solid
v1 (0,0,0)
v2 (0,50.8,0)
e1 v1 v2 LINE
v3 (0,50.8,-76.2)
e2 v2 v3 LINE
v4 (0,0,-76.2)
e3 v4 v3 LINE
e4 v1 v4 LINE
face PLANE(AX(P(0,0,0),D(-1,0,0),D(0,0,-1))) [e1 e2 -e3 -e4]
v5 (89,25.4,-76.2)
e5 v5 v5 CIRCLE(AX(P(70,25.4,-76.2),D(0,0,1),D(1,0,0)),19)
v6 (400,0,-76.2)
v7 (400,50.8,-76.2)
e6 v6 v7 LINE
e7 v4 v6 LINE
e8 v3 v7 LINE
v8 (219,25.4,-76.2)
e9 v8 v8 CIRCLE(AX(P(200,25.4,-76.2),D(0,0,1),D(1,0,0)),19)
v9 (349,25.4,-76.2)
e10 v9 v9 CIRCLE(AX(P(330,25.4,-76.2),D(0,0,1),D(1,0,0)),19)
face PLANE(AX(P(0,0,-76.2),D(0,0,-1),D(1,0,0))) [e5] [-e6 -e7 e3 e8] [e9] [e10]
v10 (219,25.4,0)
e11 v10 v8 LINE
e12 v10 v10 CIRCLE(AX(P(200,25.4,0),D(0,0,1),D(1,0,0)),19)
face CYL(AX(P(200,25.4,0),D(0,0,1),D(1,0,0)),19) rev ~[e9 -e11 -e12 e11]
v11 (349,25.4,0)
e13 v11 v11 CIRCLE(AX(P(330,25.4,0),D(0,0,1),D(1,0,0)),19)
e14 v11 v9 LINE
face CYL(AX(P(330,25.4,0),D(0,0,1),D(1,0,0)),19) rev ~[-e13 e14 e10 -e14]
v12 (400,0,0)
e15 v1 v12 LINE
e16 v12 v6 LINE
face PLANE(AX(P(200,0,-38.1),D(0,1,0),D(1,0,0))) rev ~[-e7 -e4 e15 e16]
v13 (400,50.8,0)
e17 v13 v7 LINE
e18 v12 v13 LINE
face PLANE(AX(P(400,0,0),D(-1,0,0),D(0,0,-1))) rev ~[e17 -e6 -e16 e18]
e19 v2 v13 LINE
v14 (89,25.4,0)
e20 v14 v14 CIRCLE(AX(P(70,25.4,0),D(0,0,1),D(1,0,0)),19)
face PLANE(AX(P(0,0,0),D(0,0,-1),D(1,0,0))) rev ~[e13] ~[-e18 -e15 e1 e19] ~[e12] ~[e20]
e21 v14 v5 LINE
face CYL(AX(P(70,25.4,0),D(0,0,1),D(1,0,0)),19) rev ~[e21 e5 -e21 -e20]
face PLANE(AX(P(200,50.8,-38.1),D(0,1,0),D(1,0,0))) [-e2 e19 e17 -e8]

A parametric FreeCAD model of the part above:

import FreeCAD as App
import Part
import Sketcher
from FreeCAD import Vector


def add_polygon(sketch, points):
    """Adds a closed chain of lines whose ends are joined by coincident constraints."""
    first, n = sketch.GeometryCount, len(points)
    for a, b in zip(points, points[1:] + points[:1]):
        sketch.addGeometry(Part.LineSegment(App.Vector(*a, 0), App.Vector(*b, 0)), False)
    for i in range(n):
        sketch.addConstraint(Sketcher.Constraint("Coincident", first + i, 2, first + (i + 1) % n, 1))

doc = App.newDocument("Part")
body = doc.addObject("PartDesign::Body", "Body")

sketch1 = body.newObject("Sketcher::SketchObject", "Sketch")
sketch1.AttachmentSupport = (doc.getObject("XZ_Plane"), [""])
sketch1.MapMode = "FlatFace"
add_polygon(sketch1, [(0, -76), (0, 0), (400, 0), (400, -76)])
sketch1.addConstraint(Sketcher.Constraint("Vertical", 0))
sketch1.addConstraint(Sketcher.Constraint("Horizontal", 1))
sketch1.addConstraint(Sketcher.Constraint("Vertical", 2))
sketch1.addConstraint(Sketcher.Constraint("Horizontal", 3))
sketch1.addConstraint(Sketcher.Constraint("Coincident", 0, 2, -1, 1))
sketch1.addConstraint(Sketcher.Constraint("DistanceX", 1, 1, 1, 2, 400.0))
sketch1.addConstraint(Sketcher.Constraint("DistanceY", 0, 1, 0, 2, 76.2))
pad1 = body.newObject("PartDesign::Pad", "Pad")
pad1.Profile = sketch1
pad1.Length = 50.8
pad1.Reversed = True

sketch2 = body.newObject("Sketcher::SketchObject", "Sketch001")
sketch2.AttachmentSupport = (doc.getObject("XY_Plane"), [""])
sketch2.MapMode = "FlatFace"
sketch2.addGeometry(Part.Circle(Vector(70, 25, 0), Vector(0, 0, 1), 19), False)
sketch2.addGeometry(Part.Circle(Vector(200, 25, 0), Vector(0, 0, 1), 19), False)
sketch2.addGeometry(Part.Circle(Vector(330, 25, 0), Vector(0, 0, 1), 19), False)
sketch2.addConstraint(Sketcher.Constraint("Equal", 0, 1))
sketch2.addConstraint(Sketcher.Constraint("Equal", 1, 2))
sketch2.addConstraint(Sketcher.Constraint("Horizontal", 0, 3, 1, 3))
sketch2.addConstraint(Sketcher.Constraint("Horizontal", 1, 3, 2, 3))
sketch2.addConstraint(Sketcher.Constraint("Diameter", 0, 38.0))
sketch2.addConstraint(Sketcher.Constraint("DistanceX", -1, 1, 0, 3, 70.0))
sketch2.addConstraint(Sketcher.Constraint("DistanceX", -1, 1, 1, 3, 200.0))
sketch2.addConstraint(Sketcher.Constraint("DistanceX", -1, 1, 2, 3, 330.0))
sketch2.addConstraint(Sketcher.Constraint("DistanceY", -1, 1, 0, 3, 25.4))
pocket1 = body.newObject("PartDesign::Pocket", "Pocket")
pocket1.Profile = sketch2
pocket1.Length = 76.2

doc.recompute()
